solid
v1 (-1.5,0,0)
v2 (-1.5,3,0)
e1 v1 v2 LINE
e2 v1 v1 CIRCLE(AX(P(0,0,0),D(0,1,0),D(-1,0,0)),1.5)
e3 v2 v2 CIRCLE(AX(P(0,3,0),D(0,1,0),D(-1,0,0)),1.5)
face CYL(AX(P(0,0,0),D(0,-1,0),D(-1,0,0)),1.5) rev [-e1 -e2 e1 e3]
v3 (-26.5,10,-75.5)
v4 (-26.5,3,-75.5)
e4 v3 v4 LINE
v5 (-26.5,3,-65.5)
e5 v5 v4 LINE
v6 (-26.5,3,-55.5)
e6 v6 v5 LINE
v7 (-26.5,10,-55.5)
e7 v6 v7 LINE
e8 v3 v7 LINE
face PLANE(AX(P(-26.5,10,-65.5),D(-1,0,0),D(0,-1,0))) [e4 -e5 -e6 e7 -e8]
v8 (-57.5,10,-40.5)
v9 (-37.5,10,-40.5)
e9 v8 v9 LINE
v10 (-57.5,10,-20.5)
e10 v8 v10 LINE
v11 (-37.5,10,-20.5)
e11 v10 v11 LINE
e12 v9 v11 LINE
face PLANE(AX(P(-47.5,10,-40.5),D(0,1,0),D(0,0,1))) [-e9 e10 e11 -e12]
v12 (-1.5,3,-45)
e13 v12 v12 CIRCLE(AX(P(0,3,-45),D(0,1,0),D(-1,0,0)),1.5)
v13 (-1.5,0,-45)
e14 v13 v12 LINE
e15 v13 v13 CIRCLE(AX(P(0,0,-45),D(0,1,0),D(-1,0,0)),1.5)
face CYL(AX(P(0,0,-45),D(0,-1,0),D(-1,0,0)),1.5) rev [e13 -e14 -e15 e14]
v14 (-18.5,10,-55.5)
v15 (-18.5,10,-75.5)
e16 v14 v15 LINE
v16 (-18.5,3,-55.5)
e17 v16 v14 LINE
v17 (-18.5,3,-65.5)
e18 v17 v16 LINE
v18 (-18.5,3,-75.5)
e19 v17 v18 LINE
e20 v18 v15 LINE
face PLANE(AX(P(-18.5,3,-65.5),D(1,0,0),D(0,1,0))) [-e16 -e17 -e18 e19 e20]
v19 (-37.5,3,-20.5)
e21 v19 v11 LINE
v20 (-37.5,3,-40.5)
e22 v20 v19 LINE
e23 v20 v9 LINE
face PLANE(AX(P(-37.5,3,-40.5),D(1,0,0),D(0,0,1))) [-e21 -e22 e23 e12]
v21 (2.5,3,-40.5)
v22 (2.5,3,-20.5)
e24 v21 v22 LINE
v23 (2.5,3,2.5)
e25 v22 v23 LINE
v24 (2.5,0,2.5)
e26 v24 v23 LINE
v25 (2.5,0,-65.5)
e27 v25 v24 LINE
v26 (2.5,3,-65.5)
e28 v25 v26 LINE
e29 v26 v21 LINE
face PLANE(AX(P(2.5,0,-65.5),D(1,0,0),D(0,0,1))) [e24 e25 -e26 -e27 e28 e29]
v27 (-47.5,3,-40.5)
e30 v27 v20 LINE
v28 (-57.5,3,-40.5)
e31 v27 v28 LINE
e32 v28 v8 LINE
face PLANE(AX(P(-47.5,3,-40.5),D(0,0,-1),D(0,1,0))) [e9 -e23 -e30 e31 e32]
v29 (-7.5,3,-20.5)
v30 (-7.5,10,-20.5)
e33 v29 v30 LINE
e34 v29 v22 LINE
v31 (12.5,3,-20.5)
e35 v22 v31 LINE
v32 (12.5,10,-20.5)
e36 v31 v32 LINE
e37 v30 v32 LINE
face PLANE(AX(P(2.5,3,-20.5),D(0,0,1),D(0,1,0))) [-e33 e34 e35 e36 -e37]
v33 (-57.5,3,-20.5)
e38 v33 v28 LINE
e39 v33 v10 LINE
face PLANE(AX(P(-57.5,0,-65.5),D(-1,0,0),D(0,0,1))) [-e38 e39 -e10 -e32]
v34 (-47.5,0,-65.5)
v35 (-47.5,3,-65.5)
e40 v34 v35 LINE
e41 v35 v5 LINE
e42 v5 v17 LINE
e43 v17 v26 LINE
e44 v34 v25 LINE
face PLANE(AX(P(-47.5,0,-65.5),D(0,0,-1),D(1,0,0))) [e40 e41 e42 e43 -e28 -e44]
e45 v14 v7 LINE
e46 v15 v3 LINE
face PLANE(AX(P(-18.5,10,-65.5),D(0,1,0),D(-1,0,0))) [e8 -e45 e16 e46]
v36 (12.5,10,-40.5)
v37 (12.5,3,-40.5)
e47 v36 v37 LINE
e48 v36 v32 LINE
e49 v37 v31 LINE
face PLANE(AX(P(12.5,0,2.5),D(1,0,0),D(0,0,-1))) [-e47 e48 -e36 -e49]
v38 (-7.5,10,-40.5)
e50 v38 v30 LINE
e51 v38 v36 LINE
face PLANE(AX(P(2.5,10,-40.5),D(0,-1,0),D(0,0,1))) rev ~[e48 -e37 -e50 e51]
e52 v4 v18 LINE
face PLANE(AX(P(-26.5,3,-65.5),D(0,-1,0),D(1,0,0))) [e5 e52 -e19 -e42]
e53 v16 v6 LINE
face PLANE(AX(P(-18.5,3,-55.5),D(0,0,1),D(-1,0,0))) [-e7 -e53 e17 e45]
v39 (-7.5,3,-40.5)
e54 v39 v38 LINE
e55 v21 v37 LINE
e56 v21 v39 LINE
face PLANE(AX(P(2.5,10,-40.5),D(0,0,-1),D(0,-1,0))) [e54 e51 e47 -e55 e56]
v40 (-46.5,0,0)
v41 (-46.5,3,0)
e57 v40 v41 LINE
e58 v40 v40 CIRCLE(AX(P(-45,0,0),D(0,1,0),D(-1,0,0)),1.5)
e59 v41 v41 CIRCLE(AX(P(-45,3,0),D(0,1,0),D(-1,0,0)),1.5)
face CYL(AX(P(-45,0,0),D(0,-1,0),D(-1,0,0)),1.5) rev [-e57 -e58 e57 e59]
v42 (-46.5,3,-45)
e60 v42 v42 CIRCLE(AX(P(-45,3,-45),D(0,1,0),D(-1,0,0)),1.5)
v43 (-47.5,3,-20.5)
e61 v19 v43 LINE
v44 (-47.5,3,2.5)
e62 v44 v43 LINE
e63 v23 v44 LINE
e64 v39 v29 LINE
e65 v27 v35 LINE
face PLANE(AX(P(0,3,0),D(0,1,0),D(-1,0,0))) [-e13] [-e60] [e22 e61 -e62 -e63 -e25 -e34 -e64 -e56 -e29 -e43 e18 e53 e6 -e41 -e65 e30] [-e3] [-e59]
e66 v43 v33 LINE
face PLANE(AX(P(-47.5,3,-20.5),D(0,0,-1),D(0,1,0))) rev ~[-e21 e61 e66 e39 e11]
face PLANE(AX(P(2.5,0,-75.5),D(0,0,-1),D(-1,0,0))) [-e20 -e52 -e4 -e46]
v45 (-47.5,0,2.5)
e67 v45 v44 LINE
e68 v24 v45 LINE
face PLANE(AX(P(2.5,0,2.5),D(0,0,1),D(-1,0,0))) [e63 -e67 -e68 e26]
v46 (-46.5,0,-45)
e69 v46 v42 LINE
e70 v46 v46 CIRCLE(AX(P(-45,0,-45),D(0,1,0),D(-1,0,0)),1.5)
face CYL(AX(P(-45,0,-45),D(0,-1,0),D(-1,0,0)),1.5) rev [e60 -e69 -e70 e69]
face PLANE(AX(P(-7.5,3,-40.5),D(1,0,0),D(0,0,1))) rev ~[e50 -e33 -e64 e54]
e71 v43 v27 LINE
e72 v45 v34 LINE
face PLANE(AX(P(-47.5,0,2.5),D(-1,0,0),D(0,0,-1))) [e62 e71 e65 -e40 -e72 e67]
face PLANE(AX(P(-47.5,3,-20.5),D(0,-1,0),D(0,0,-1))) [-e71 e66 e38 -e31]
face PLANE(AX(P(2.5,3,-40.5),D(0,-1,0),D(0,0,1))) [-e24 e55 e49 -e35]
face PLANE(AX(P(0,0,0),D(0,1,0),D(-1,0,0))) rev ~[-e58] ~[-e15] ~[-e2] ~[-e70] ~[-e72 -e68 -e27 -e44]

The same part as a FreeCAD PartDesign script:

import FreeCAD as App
import Part
import Sketcher
Q = App.Units.Quantity


def add_polygon(sketch, points):
    """Adds a closed chain of lines whose ends are joined by coincident constraints."""
    first, n = sketch.GeometryCount, len(points)
    for a, b in zip(points, points[1:] + points[:1]):
        sketch.addGeometry(Part.LineSegment(App.Vector(*a, 0), App.Vector(*b, 0)), False)
    for i in range(n):
        sketch.addConstraint(Sketcher.Constraint("Coincident", first + i, 2, first + (i + 1) % n, 1))

doc = App.newDocument("Part")
body = doc.addObject("PartDesign::Body", "Body")

# Sketch on XZ plane
sketch1 = body.newObject("Sketcher::SketchObject", "Sketch")
sketch1.AttachmentSupport = (doc.getObject("XZ_Plane"), [""])
sketch1.MapMode = "FlatFace"
add_polygon(sketch1, [(-47.5, 2.5), (2.5, 2.5), (2.5, -65.5), (-47.5, -65.5)])  # lines 0-3
sketch1.addGeometry(Part.Circle(App.Vector(0, -45, 0), App.Vector(0, 0, 1), 1.5), False)  # 4
sketch1.addGeometry(Part.Circle(App.Vector(-45, -45, 0), App.Vector(0, 0, 1), 1.5), False)  # 5
sketch1.addGeometry(Part.Circle(App.Vector(0, 0, 0), App.Vector(0, 0, 1), 1.5), False)  # 6
sketch1.addGeometry(Part.Circle(App.Vector(-45, 0, 0), App.Vector(0, 0, 1), 1.5), False)  # 7
sketch1.addConstraint(Sketcher.Constraint("Horizontal", 0))
sketch1.addConstraint(Sketcher.Constraint("Vertical", 1))
sketch1.addConstraint(Sketcher.Constraint("Horizontal", 2))
sketch1.addConstraint(Sketcher.Constraint("Vertical", 3))
sketch1.addConstraint(Sketcher.Constraint("Coincident", 6, 3, -1, 1))
sketch1.addConstraint(Sketcher.Constraint("Equal", 4, 5))
sketch1.addConstraint(Sketcher.Constraint("Equal", 5, 6))
sketch1.addConstraint(Sketcher.Constraint("Equal", 6, 7))
sketch1.addConstraint(Sketcher.Constraint("PointOnObject", 4, 3, -2))
sketch1.addConstraint(Sketcher.Constraint("PointOnObject", 7, 3, -1))
sketch1.addConstraint(Sketcher.Constraint("Horizontal", 4, 3, 5, 3))
sketch1.addConstraint(Sketcher.Constraint("Vertical", 5, 3, 7, 3))
sketch1.addConstraint(Sketcher.Constraint("Diameter", 4, Q("3 mm")))
sketch1.addConstraint(Sketcher.Constraint("DistanceX", 0, 1, 0, 2, Q("50 mm")))
sketch1.addConstraint(Sketcher.Constraint("DistanceY", 1, 2, 1, 1, Q("68 mm")))
sketch1.addConstraint(Sketcher.Constraint("DistanceY", 4, 3, -1, 1, Q("45 mm")))
sketch1.addConstraint(Sketcher.Constraint("DistanceX", 5, 3, -1, 1, Q("45 mm")))
sketch1.addConstraint(Sketcher.Constraint("DistanceX", -1, 1, 0, 2, Q("2.5 mm")))
sketch1.addConstraint(Sketcher.Constraint("DistanceY", -1, 1, 0, 2, Q("2.5 mm")))
pad1 = body.newObject("PartDesign::Pad", "Pad")
pad1.Profile = sketch1
pad1.Length = 3
pad1.Reversed = True

# Sketch on XZ plane
sketch2 = body.newObject("Sketcher::SketchObject", "Sketch001")
sketch2.AttachmentSupport = (doc.getObject("XZ_Plane"), [""])
sketch2.MapMode = "FlatFace"
sketch2.AttachmentOffset = App.Placement(App.Vector(0, 0, -3), App.Rotation())
add_polygon(sketch2, [(-8, -20), (2, -20), (2, -40), (-8, -40)])  # lines 0-3
add_polygon(sketch2, [(-38, -40), (-48, -40), (-48, -20), (-38, -20)])  # lines 4-7
add_polygon(sketch2, [(-18, -56), (-18, -66), (-26, -66), (-26, -56)])  # lines 8-11
sketch2.addConstraint(Sketcher.Constraint("Horizontal", 0))
sketch2.addConstraint(Sketcher.Constraint("Vertical", 1))
sketch2.addConstraint(Sketcher.Constraint("Horizontal", 2))
sketch2.addConstraint(Sketcher.Constraint("Vertical", 3))
sketch2.addConstraint(Sketcher.Constraint("Horizontal", 4))
sketch2.addConstraint(Sketcher.Constraint("Vertical", 5))
sketch2.addConstraint(Sketcher.Constraint("Horizontal", 6))
sketch2.addConstraint(Sketcher.Constraint("Vertical", 7))
sketch2.addConstraint(Sketcher.Constraint("Vertical", 8))
sketch2.addConstraint(Sketcher.Constraint("Horizontal", 9))
sketch2.addConstraint(Sketcher.Constraint("Vertical", 10))
sketch2.addConstraint(Sketcher.Constraint("Horizontal", 11))
sketch2.addConstraint(Sketcher.Constraint("Horizontal", 2, 2, 4, 2))
sketch2.addConstraint(Sketcher.Constraint("Horizontal", 3, 2, 5, 2))
sketch2.addConstraint(Sketcher.Constraint("Equal", 2, 4))
sketch2.addConstraint(Sketcher.Constraint("Equal", 6, 8))
sketch2.addConstraint(Sketcher.Constraint("DistanceX", 0, 1, 0, 2, Q("10 mm")))
sketch2.addConstraint(Sketcher.Constraint("DistanceX", 9, 2, 9, 1, Q("8 mm")))
sketch2.addConstraint(Sketcher.Constraint("DistanceY", 1, 2, 1, 1, Q("20 mm")))
sketch2.addConstraint(Sketcher.Constraint("DistanceX", 4, 2, 1, 2, Q("50 mm")))
sketch2.addConstraint(Sketcher.Constraint("DistanceY", 8, 2, 2, 2, Q("25 mm")))
sketch2.addConstraint(Sketcher.Constraint("DistanceX", 8, 2, 1, 2, Q("21 mm")))
sketch2.addConstraint(Sketcher.Constraint("DistanceX", -1, 1, 0, 2, Q("2.5 mm")))
sketch2.addConstraint(Sketcher.Constraint("DistanceY", 0, 2, -1, 1, Q("20.5 mm")))
pad2 = body.newObject("PartDesign::Pad", "Pad001")
pad2.Profile = sketch2
pad2.Length = 7
pad2.Reversed = True

# Sketch on YZ plane
sketch3 = body.newObject("Sketcher::SketchObject", "Sketch002")
sketch3.AttachmentSupport = (doc.getObject("YZ_Plane"), [""])
sketch3.MapMode = "FlatFace"
sketch3.AttachmentOffset = App.Placement(App.Vector(0, 0, 2.5), App.Rotation())
add_polygon(sketch3, [(3, -40), (10, -40), (10, -20), (3, -20)])  # lines 0-3
sketch3.addConstraint(Sketcher.Constraint("Horizontal", 0))
sketch3.addConstraint(Sketcher.Constraint("Vertical", 1))
sketch3.addConstraint(Sketcher.Constraint("Horizontal", 2))
sketch3.addConstraint(Sketcher.Constraint("Vertical", 3))
sketch3.addConstraint(Sketcher.Constraint("DistanceX", 0, 1, 0, 2, Q("7 mm")))
sketch3.addConstraint(Sketcher.Constraint("DistanceY", 1, 1, 1, 2, Q("20 mm")))
sketch3.addConstraint(Sketcher.Constraint("DistanceX", -1, 1, 0, 2, Q("10 mm")))
sketch3.addConstraint(Sketcher.Constraint("DistanceY", 0, 2, -1, 1, Q("40.5 mm")))
pad3 = body.newObject("PartDesign::Pad", "Pad002")
pad3.Profile = sketch3
pad3.Length = 10

# Sketch on YZ plane
sketch4 = body.newObject("Sketcher::SketchObject", "Sketch003")
sketch4.AttachmentSupport = (doc.getObject("YZ_Plane"), [""])
sketch4.MapMode = "FlatFace"
sketch4.AttachmentOffset = App.Placement(App.Vector(0, 0, -47.5), App.Rotation())
add_polygon(sketch4, [(10, -40), (3, -40), (3, -20), (10, -20)])  # lines 0-3
sketch4.addConstraint(Sketcher.Constraint("Horizontal", 0))
sketch4.addConstraint(Sketcher.Constraint("Vertical", 1))
sketch4.addConstraint(Sketcher.Constraint("Horizontal", 2))
sketch4.addConstraint(Sketcher.Constraint("Vertical", 3))
sketch4.addConstraint(Sketcher.Constraint("DistanceX", 0, 2, 0, 1, Q("7 mm")))
sketch4.addConstraint(Sketcher.Constraint("DistanceY", 1, 1, 1, 2, Q("20 mm")))
sketch4.addConstraint(Sketcher.Constraint("DistanceX", -1, 1, 0, 2, Q("3 mm")))
sketch4.addConstraint(Sketcher.Constraint("DistanceY", 0, 2, -1, 1, Q("40.5 mm")))
pad4 = body.newObject("PartDesign::Pad", "Pad003")
pad4.Profile = sketch4
pad4.Length = 10
pad4.Reversed = True

# Sketch on XY plane
sketch5 = body.newObject("Sketcher::SketchObject", "Sketch004")
sketch5.AttachmentSupport = (doc.getObject("XY_Plane"), [""])
sketch5.MapMode = "FlatFace"
sketch5.AttachmentOffset = App.Placement(App.Vector(0, 0, -65.5), App.Rotation())
add_polygon(sketch5, [(-26, 10), (-18, 10), (-18, 3), (-26, 3)])  # lines 0-3
sketch5.addConstraint(Sketcher.Constraint("Horizontal", 0))
sketch5.addConstraint(Sketcher.Constraint("Vertical", 1))
sketch5.addConstraint(Sketcher.Constraint("Horizontal", 2))
sketch5.addConstraint(Sketcher.Constraint("Vertical", 3))
sketch5.addConstraint(Sketcher.Constraint("DistanceX", 0, 1, 0, 2, Q("8 mm")))
sketch5.addConstraint(Sketcher.Constraint("DistanceY", 1, 2, 1, 1, Q("7 mm")))
sketch5.addConstraint(Sketcher.Constraint("DistanceY", -1, 1, 0, 2, Q("10 mm")))
sketch5.addConstraint(Sketcher.Constraint("DistanceX", 0, 2, -1, 1, Q("18.5 mm")))
pad5 = body.newObject("PartDesign::Pad", "Pad004")
pad5.Profile = sketch5
pad5.Length = 10
pad5.Reversed = True

doc.recompute()
